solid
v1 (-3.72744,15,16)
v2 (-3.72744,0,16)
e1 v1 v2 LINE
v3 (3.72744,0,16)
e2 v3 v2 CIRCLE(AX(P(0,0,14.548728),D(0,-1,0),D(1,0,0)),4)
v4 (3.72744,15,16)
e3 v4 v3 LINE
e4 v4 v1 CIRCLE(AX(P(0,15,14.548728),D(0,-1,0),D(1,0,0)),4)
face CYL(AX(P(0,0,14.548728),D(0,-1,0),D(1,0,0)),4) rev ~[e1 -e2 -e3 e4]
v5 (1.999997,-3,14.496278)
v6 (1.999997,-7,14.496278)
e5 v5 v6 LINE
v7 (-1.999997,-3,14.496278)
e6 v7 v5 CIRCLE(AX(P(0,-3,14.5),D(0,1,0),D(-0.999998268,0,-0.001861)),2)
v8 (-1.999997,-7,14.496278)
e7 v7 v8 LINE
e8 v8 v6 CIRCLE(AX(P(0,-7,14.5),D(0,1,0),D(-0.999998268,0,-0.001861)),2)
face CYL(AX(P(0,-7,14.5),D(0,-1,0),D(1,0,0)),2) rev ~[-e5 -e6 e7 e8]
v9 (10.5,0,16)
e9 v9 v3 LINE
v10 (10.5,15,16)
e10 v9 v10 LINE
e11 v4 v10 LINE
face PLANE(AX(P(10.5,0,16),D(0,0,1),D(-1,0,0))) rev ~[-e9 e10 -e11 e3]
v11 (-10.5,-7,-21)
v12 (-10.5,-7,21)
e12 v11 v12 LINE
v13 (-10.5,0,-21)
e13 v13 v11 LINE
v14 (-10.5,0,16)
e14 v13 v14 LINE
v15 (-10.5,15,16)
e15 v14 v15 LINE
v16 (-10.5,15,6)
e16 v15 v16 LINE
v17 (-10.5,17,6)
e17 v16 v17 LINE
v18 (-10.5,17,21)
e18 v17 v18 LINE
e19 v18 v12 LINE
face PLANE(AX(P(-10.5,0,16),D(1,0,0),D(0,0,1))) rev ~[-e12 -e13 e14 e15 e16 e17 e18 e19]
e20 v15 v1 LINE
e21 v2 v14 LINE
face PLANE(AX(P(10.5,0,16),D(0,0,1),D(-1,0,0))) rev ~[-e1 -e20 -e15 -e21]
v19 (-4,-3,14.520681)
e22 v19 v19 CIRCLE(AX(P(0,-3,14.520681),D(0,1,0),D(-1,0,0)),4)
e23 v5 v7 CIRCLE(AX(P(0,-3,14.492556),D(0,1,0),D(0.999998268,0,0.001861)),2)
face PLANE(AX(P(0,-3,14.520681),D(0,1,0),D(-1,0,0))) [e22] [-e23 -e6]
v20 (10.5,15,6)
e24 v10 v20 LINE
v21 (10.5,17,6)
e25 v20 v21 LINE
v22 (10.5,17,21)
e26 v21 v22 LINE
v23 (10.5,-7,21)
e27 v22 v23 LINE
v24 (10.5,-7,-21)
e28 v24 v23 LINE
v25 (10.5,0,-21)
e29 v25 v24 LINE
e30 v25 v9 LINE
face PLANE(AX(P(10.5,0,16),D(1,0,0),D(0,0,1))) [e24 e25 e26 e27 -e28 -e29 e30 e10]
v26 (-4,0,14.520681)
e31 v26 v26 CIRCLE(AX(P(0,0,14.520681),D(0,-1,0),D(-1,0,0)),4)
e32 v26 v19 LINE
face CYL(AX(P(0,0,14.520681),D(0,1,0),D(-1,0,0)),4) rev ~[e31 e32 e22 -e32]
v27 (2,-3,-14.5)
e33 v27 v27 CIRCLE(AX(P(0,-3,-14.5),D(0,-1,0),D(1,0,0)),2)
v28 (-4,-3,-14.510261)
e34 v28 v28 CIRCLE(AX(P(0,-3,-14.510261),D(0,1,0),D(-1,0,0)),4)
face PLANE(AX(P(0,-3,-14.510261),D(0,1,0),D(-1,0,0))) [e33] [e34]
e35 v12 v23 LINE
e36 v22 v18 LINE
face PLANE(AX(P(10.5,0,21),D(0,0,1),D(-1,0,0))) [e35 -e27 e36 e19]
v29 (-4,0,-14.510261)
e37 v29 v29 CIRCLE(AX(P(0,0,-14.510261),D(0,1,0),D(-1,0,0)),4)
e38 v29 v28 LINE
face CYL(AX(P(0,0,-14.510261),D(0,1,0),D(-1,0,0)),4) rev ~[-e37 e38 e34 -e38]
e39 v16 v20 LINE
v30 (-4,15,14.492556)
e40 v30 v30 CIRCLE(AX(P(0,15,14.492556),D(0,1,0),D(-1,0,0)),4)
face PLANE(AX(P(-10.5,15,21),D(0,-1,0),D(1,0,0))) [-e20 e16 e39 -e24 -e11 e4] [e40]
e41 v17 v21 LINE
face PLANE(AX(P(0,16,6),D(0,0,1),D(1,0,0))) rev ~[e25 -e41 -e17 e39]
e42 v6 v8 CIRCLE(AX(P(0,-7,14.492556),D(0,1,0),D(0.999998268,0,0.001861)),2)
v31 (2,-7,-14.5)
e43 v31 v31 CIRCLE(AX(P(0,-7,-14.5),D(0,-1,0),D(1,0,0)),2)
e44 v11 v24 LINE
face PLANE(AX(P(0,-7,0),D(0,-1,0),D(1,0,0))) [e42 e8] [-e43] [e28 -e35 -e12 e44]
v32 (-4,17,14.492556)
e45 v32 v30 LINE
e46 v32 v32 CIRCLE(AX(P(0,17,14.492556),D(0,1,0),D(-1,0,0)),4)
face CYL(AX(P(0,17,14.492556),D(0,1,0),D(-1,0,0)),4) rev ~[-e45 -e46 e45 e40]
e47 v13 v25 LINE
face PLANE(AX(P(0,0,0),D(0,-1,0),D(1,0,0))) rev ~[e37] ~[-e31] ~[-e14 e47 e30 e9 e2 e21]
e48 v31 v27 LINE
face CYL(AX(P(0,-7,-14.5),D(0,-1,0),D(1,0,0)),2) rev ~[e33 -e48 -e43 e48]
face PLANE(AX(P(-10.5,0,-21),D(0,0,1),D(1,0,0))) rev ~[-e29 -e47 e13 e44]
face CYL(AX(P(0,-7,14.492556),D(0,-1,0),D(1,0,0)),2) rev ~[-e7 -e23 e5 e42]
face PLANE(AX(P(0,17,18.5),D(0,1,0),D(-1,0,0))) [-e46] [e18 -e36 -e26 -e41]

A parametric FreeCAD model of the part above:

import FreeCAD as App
import Part
import Sketcher

V = App.Vector

doc = App.newDocument("Part")
params = doc.addObject("Spreadsheet::Sheet", "Params")
for row, (alias, value) in enumerate([
    ("sketch1_width", "21 mm"),
    ("sketch1_height", "42 mm"),
    ("pad1_length", "7 mm"),
    ("sketch2_width", "21 mm"),
    ("sketch2_height", "5 mm"),
    ("pad2_length", "17 mm"),
    ("sketch3_diameter", "4 mm"),
    ("pocket1_length", "25 mm"),
    ("sketch4_diameter", "8 mm"),
    ("pocket2_length", "3 mm"),
    ("sketch5_diameter", "8 mm"),
    ("pocket3_length", "25 mm"),
    ("sketch6_width", "21 mm"),
    ("sketch6_height", "2 mm"),
    ("pad3_length", "15 mm"),
    ("sketch7_diameter", "4 mm"),
    ("pocket4_length", "25 mm"),
    ("sketch8_diameter", "8 mm"),
    ("pocket5_length", "5 mm"),
], start=1):
    params.set(f"A{row}", alias)
    params.set(f"B{row}", "=" + value)
    params.setAlias(f"B{row}", alias)

body = doc.addObject("PartDesign::Body", "Body")

sketch1 = body.newObject("Sketcher::SketchObject", "Sketch")
sketch1.AttachmentSupport = (doc.getObject("XZ_Plane"), [""])
sketch1.MapMode = "FlatFace"
sketch1.addGeometry([
    Part.LineSegment(V(-10, 21, 0), V(-10, -21, 0)),
    Part.LineSegment(V(-10, -21, 0), V(10, -21, 0)),
    Part.LineSegment(V(10, -21, 0), V(10, 21, 0)),
    Part.LineSegment(V(10, 21, 0), V(-10, 21, 0)),
], False)
sketch1.addConstraint([
    Sketcher.Constraint("Coincident", 0, 2, 1, 1),
    Sketcher.Constraint("Coincident", 1, 2, 2, 1),
    Sketcher.Constraint("Coincident", 2, 2, 3, 1),
    Sketcher.Constraint("Coincident", 3, 2, 0, 1),
    Sketcher.Constraint("Vertical", 0),
    Sketcher.Constraint("Horizontal", 1),
    Sketcher.Constraint("Vertical", 2),
    Sketcher.Constraint("Horizontal", 3),
    Sketcher.Constraint("Symmetric", 0, 2, 2, 2, -1, 1),
    Sketcher.Constraint("DistanceX", 1, 1, 1, 2, 21.0),
    Sketcher.Constraint("DistanceY", 0, 2, 0, 1, 42.0),
])
sketch1.setExpression("Constraints[9]", "Params.sketch1_width")
sketch1.setExpression("Constraints[10]", "Params.sketch1_height")
pad1 = body.newObject("PartDesign::Pad", "Pad")
pad1.Profile = sketch1
pad1.setExpression("Length", "Params.pad1_length")

sketch2 = body.newObject("Sketcher::SketchObject", "Sketch001")
sketch2.AttachmentSupport = (doc.getObject("XZ_Plane"), [""])
sketch2.MapMode = "FlatFace"
sketch2.addGeometry([
    Part.LineSegment(V(10, 21, 0), V(10, 16, 0)),
    Part.LineSegment(V(10, 16, 0), V(-10, 16, 0)),
    Part.LineSegment(V(-10, 16, 0), V(-10, 21, 0)),
    Part.LineSegment(V(-10, 21, 0), V(10, 21, 0)),
], False)
sketch2.addConstraint([
    Sketcher.Constraint("Coincident", 0, 2, 1, 1),
    Sketcher.Constraint("Coincident", 1, 2, 2, 1),
    Sketcher.Constraint("Coincident", 2, 2, 3, 1),
    Sketcher.Constraint("Coincident", 3, 2, 0, 1),
    Sketcher.Constraint("Vertical", 0),
    Sketcher.Constraint("Horizontal", 1),
    Sketcher.Constraint("Vertical", 2),
    Sketcher.Constraint("Horizontal", 3),
    Sketcher.Constraint("DistanceX", 1, 2, 1, 1, 21.0),
    Sketcher.Constraint("DistanceY", 0, 2, 0, 1, 5.0),
    Sketcher.Constraint("DistanceY", -1, 1, 0, 2, 16.0),
    Sketcher.Constraint("DistanceX", -1, 1, 0, 2, 10.5),
])
sketch2.setExpression("Constraints[8]", "Params.sketch2_width")
sketch2.setExpression("Constraints[9]", "Params.sketch2_height")
pad2 = body.newObject("PartDesign::Pad", "Pad001")
pad2.Profile = sketch2
pad2.setExpression("Length", "Params.pad2_length")
pad2.Reversed = True

sketch3 = body.newObject("Sketcher::SketchObject", "Sketch002")
sketch3.AttachmentSupport = (doc.getObject("XZ_Plane"), [""])
sketch3.MapMode = "FlatFace"
sketch3.AttachmentOffset = App.Placement(V(0, 0, 7), App.Rotation())
sketch3.addGeometry([
    Part.Circle(V(0, 14.5, 0), V(0, 0, 1), 2),
    Part.Circle(V(0, -14.5, 0), V(0, 0, 1), 2),
], False)
sketch3.addConstraint([
    Sketcher.Constraint("Equal", 0, 1),
    Sketcher.Constraint("Symmetric", 0, 3, 1, 3, -1, 1),
    Sketcher.Constraint("PointOnObject", 0, 3, -2),
    Sketcher.Constraint("Diameter", 0, 4.0),
    Sketcher.Constraint("DistanceY", 1, 3, 0, 3, 29.0),
])
sketch3.setExpression("Constraints[3]", "Params.sketch3_diameter")
pocket1 = body.newObject("PartDesign::Pocket", "Pocket")
pocket1.Profile = sketch3
pocket1.setExpression("Length", "Params.pocket1_length")

sketch4 = body.newObject("Sketcher::SketchObject", "Sketch003")
sketch4.AttachmentSupport = (doc.getObject("XZ_Plane"), [""])
sketch4.MapMode = "FlatFace"
sketch4.addGeometry([
    Part.Circle(V(0, 14.5, 0), V(0, 0, 1), 4),
    Part.Circle(V(0, -14.5, 0), V(0, 0, 1), 4),
], False)
sketch4.addConstraint([
    Sketcher.Constraint("Equal", 0, 1),
    Sketcher.Constraint("PointOnObject", 0, 3, -2),
    Sketcher.Constraint("PointOnObject", 1, 3, -2),
    Sketcher.Constraint("Diameter", 0, 8.0),
    Sketcher.Constraint("DistanceY", -1, 1, 0, 3, 14.520681),
    Sketcher.Constraint("DistanceY", 1, 3, -1, 1, 14.510261),
])
sketch4.setExpression("Constraints[3]", "Params.sketch4_diameter")
pocket2 = body.newObject("PartDesign::Pocket", "Pocket001")
pocket2.Profile = sketch4
pocket2.setExpression("Length", "Params.pocket2_length")
pocket2.Reversed = True

sketch5 = body.newObject("Sketcher::SketchObject", "Sketch004")
sketch5.AttachmentSupport = (doc.getObject("XZ_Plane"), [""])
sketch5.MapMode = "FlatFace"
sketch5.addGeometry(Part.Circle(V(0, 14.5, 0), V(0, 0, 1), 4), False)
sketch5.addConstraint([
    Sketcher.Constraint("PointOnObject", 0, 3, -2),
    Sketcher.Constraint("Diameter", 0, 8.0),
    Sketcher.Constraint("DistanceY", -1, 1, 0, 3, 14.548728),
])
sketch5.setExpression("Constraints[1]", "Params.sketch5_diameter")
pocket3 = body.newObject("PartDesign::Pocket", "Pocket002")
pocket3.Profile = sketch5
pocket3.setExpression("Length", "Params.pocket3_length")

sketch6 = body.newObject("Sketcher::SketchObject", "Sketch005")
sketch6.AttachmentSupport = (doc.getObject("XY_Plane"), [""])
sketch6.MapMode = "FlatFace"
sketch6.AttachmentOffset = App.Placement(V(0, 0, 21), App.Rotation())
sketch6.addGeometry([
    Part.LineSegment(V(-10.5, 17, 0), V(-10.5, 15, 0)),
    Part.LineSegment(V(-10.5, 15, 0), V(10.5, 15, 0)),
    Part.LineSegment(V(10.5, 15, 0), V(10.5, 17, 0)),
    Part.LineSegment(V(10.5, 17, 0), V(-10.5, 17, 0)),
], False)
sketch6.addConstraint([
    Sketcher.Constraint("Coincident", 0, 2, 1, 1),
    Sketcher.Constraint("Coincident", 1, 2, 2, 1),
    Sketcher.Constraint("Coincident", 2, 2, 3, 1),
    Sketcher.Constraint("Coincident", 3, 2, 0, 1),
    Sketcher.Constraint("Vertical", 0),
    Sketcher.Constraint("Horizontal", 1),
    Sketcher.Constraint("Vertical", 2),
    Sketcher.Constraint("Horizontal", 3),
    Sketcher.Constraint("DistanceX", 1, 1, 1, 2, 21.0),
    Sketcher.Constraint("DistanceY", 0, 2, 0, 1, 2.0),
    Sketcher.Constraint("DistanceY", -1, 1, 0, 2, 15.0),
    Sketcher.Constraint("DistanceX", 0, 2, -1, 1, 10.5),
])
sketch6.setExpression("Constraints[8]", "Params.sketch6_width")
sketch6.setExpression("Constraints[9]", "Params.sketch6_height")
pad3 = body.newObject("PartDesign::Pad", "Pad002")
pad3.Profile = sketch6
pad3.setExpression("Length", "Params.pad3_length")
pad3.Reversed = True

sketch7 = body.newObject("Sketcher::SketchObject", "Sketch006")
sketch7.AttachmentSupport = (doc.getObject("XZ_Plane"), [""])
sketch7.MapMode = "FlatFace"
sketch7.AttachmentOffset = App.Placement(V(0, 0, 7), App.Rotation())
sketch7.addGeometry(Part.Circle(V(0, 14.5, 0), V(0, 0, 1), 2), False)
sketch7.addConstraint([
    Sketcher.Constraint("PointOnObject", 0, 3, -2),
    Sketcher.Constraint("Diameter", 0, 4.0),
    Sketcher.Constraint("DistanceY", -1, 1, 0, 3, 14.492556),
])
sketch7.setExpression("Constraints[1]", "Params.sketch7_diameter")
pocket4 = body.newObject("PartDesign::Pocket", "Pocket003")
pocket4.Profile = sketch7
pocket4.setExpression("Length", "Params.pocket4_length")

sketch8 = body.newObject("Sketcher::SketchObject", "Sketch007")
sketch8.AttachmentSupport = (doc.getObject("XZ_Plane"), [""])
sketch8.MapMode = "FlatFace"
sketch8.AttachmentOffset = App.Placement(V(0, 0, -17), App.Rotation())
sketch8.addGeometry(Part.Circle(V(0, 14.5, 0), V(0, 0, 1), 4), False)
sketch8.addConstraint([
    Sketcher.Constraint("PointOnObject", 0, 3, -2),
    Sketcher.Constraint("Diameter", 0, 8.0),
    Sketcher.Constraint("DistanceY", -1, 1, 0, 3, 14.492556),
])
sketch8.setExpression("Constraints[1]", "Params.sketch8_diameter")
pocket5 = body.newObject("PartDesign::Pocket", "Pocket004")
pocket5.Profile = sketch8
pocket5.setExpression("Length", "Params.pocket5_length")
pocket5.Reversed = True

doc.recompute()
